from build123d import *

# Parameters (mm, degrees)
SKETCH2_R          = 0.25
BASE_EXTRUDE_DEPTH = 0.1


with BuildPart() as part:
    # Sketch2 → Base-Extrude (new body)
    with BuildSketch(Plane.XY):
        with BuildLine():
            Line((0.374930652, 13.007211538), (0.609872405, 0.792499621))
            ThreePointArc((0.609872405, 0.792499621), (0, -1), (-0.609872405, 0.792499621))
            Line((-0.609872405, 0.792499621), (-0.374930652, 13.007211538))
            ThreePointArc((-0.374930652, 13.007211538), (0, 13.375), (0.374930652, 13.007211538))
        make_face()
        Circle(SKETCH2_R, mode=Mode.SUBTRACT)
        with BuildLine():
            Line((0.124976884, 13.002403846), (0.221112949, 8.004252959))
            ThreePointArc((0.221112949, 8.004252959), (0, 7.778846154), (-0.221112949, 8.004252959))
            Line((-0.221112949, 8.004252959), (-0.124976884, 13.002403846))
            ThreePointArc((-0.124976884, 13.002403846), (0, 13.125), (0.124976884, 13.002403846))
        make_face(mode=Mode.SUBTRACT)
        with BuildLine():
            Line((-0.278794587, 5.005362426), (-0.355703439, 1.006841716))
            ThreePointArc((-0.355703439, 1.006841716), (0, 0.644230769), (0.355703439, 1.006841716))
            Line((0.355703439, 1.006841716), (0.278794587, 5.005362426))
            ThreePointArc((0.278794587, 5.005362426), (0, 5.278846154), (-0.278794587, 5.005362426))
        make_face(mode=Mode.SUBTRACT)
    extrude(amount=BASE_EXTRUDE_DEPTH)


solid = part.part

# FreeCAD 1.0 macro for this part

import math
import FreeCAD as App
import Part
import Sketcher

V = App.Vector
Q = App.Units.Quantity

doc = App.newDocument("Part")
body = doc.addObject("PartDesign::Body", "Body")

sketch1 = body.newObject("Sketcher::SketchObject", "Sketch")
sketch1.AttachmentSupport = (doc.getObject("XY_Plane"), [""])
sketch1.MapMode = "FlatFace"
sketch1.addGeometry(Part.LineSegment(V(0.609872, 0.7925, 0), V(0.374931, 13.007212, 0)), False)
sketch1.addGeometry(Part.ArcOfCircle(Part.Circle(V(0, 13, 0), V(0, 0, 1), 0.375), math.radians(1.10191), math.radians(178.89809)), False)
sketch1.addGeometry(Part.LineSegment(V(-0.374931, 13.007212, 0), V(-0.609872, 0.7925, 0)), False)
sketch1.addGeometry(Part.ArcOfCircle(Part.Circle(V(0, 0, 0), V(0, 0, 1), 1), math.radians(127.580278), math.radians(412.419722)), False)
sketch1.addGeometry(Part.ArcOfCircle(Part.Circle(V(0, 5, 0), V(0, 0, 1), 0.278846), math.radians(1.10191), math.radians(178.89809)), False)
sketch1.addGeometry(Part.LineSegment(V(0.278795, 5.005362, 0), V(0.355703, 1.006842, 0)), False)
sketch1.addGeometry(Part.ArcOfCircle(Part.Circle(V(0, 1, 0), V(0, 0, 1), 0.355769), math.radians(178.89809), math.radians(361.10191)), False)
sketch1.addGeometry(Part.LineSegment(V(-0.355703, 1.006842, 0), V(-0.278795, 5.005362, 0)), False)
sketch1.addGeometry(Part.Circle(V(0, 0, 0), V(0, 0, 1), 0.25), False)
sketch1.addGeometry(Part.LineSegment(V(0.124977, 13.002404, 0), V(0.221113, 8.004253, 0)), False)
sketch1.addGeometry(Part.ArcOfCircle(Part.Circle(V(0, 8, 0), V(0, 0, 1), 0.221154), math.radians(178.89809), math.radians(361.10191)), False)
sketch1.addGeometry(Part.LineSegment(V(-0.221113, 8.004253, 0), V(-0.124977, 13.002404, 0)), False)
sketch1.addGeometry(Part.ArcOfCircle(Part.Circle(V(0, 13, 0), V(0, 0, 1), 0.125), math.radians(1.10191), math.radians(178.89809)), False)
sketch1.addConstraint(Sketcher.Constraint("Tangent", 0, 2, 1, 1))
sketch1.addConstraint(Sketcher.Constraint("Tangent", 1, 2, 2, 1))
sketch1.addConstraint(Sketcher.Constraint("Coincident", 2, 2, 3, 1))
sketch1.addConstraint(Sketcher.Constraint("Coincident", 3, 2, 0, 1))
sketch1.addConstraint(Sketcher.Constraint("Tangent", 4, 1, 5, 1))
sketch1.addConstraint(Sketcher.Constraint("Tangent", 5, 2, 6, 2))
sketch1.addConstraint(Sketcher.Constraint("Tangent", 6, 1, 7, 1))
sketch1.addConstraint(Sketcher.Constraint("Tangent", 7, 2, 4, 2))
sketch1.addConstraint(Sketcher.Constraint("Tangent", 9, 2, 10, 2))
sketch1.addConstraint(Sketcher.Constraint("Tangent", 10, 1, 11, 1))
sketch1.addConstraint(Sketcher.Constraint("Tangent", 11, 2, 12, 2))
sketch1.addConstraint(Sketcher.Constraint("Tangent", 12, 1, 9, 1))
sketch1.addConstraint(Sketcher.Constraint("Coincident", 3, 3, -1, 1))
sketch1.addConstraint(Sketcher.Constraint("Coincident", 8, 3, -1, 1))
sketch1.addConstraint(Sketcher.Constraint("Coincident", 12, 3, 1, 3))
sketch1.addConstraint(Sketcher.Constraint("Symmetric", 0, 2, 1, 2, -2))
sketch1.addConstraint(Sketcher.Constraint("Symmetric", 5, 2, 6, 1, -2))
sketch1.addConstraint(Sketcher.Constraint("PointOnObject", 10, 3, -2))
sketch1.addConstraint(Sketcher.Constraint("Parallel", 0, 5))
sketch1.addConstraint(Sketcher.Constraint("Parallel", 5, 9))
sketch1.addConstraint(Sketcher.Constraint("Radius", 3, Q("1 mm")))
sketch1.addConstraint(Sketcher.Constraint("Diameter", 8, Q("0.5 mm")))
sketch1.addConstraint(Sketcher.Constraint("DistanceY", -1, 1, 1, 3, Q("13 mm")))
sketch1.addConstraint(Sketcher.Constraint("DistanceY", -1, 1, 4, 3, Q("5 mm")))
sketch1.addConstraint(Sketcher.Constraint("DistanceY", -1, 1, 6, 3, Q("1 mm")))
sketch1.addConstraint(Sketcher.Constraint("DistanceY", -1, 1, 10, 3, Q("8 mm")))
sketch1.addConstraint(Sketcher.Constraint("Radius", 1, Q("0.375 mm")))
sketch1.addConstraint(Sketcher.Constraint("Radius", 12, Q("0.125 mm")))
sketch1.addConstraint(Sketcher.Constraint("Radius", 6, Q("0.355769 mm")))
sketch1.addConstraint(Sketcher.Constraint("Radius", 4, Q("0.278846 mm")))
pad1 = body.newObject("PartDesign::Pad", "Pad")
pad1.Profile = sketch1
pad1.Length = 0.1

doc.recompute()
